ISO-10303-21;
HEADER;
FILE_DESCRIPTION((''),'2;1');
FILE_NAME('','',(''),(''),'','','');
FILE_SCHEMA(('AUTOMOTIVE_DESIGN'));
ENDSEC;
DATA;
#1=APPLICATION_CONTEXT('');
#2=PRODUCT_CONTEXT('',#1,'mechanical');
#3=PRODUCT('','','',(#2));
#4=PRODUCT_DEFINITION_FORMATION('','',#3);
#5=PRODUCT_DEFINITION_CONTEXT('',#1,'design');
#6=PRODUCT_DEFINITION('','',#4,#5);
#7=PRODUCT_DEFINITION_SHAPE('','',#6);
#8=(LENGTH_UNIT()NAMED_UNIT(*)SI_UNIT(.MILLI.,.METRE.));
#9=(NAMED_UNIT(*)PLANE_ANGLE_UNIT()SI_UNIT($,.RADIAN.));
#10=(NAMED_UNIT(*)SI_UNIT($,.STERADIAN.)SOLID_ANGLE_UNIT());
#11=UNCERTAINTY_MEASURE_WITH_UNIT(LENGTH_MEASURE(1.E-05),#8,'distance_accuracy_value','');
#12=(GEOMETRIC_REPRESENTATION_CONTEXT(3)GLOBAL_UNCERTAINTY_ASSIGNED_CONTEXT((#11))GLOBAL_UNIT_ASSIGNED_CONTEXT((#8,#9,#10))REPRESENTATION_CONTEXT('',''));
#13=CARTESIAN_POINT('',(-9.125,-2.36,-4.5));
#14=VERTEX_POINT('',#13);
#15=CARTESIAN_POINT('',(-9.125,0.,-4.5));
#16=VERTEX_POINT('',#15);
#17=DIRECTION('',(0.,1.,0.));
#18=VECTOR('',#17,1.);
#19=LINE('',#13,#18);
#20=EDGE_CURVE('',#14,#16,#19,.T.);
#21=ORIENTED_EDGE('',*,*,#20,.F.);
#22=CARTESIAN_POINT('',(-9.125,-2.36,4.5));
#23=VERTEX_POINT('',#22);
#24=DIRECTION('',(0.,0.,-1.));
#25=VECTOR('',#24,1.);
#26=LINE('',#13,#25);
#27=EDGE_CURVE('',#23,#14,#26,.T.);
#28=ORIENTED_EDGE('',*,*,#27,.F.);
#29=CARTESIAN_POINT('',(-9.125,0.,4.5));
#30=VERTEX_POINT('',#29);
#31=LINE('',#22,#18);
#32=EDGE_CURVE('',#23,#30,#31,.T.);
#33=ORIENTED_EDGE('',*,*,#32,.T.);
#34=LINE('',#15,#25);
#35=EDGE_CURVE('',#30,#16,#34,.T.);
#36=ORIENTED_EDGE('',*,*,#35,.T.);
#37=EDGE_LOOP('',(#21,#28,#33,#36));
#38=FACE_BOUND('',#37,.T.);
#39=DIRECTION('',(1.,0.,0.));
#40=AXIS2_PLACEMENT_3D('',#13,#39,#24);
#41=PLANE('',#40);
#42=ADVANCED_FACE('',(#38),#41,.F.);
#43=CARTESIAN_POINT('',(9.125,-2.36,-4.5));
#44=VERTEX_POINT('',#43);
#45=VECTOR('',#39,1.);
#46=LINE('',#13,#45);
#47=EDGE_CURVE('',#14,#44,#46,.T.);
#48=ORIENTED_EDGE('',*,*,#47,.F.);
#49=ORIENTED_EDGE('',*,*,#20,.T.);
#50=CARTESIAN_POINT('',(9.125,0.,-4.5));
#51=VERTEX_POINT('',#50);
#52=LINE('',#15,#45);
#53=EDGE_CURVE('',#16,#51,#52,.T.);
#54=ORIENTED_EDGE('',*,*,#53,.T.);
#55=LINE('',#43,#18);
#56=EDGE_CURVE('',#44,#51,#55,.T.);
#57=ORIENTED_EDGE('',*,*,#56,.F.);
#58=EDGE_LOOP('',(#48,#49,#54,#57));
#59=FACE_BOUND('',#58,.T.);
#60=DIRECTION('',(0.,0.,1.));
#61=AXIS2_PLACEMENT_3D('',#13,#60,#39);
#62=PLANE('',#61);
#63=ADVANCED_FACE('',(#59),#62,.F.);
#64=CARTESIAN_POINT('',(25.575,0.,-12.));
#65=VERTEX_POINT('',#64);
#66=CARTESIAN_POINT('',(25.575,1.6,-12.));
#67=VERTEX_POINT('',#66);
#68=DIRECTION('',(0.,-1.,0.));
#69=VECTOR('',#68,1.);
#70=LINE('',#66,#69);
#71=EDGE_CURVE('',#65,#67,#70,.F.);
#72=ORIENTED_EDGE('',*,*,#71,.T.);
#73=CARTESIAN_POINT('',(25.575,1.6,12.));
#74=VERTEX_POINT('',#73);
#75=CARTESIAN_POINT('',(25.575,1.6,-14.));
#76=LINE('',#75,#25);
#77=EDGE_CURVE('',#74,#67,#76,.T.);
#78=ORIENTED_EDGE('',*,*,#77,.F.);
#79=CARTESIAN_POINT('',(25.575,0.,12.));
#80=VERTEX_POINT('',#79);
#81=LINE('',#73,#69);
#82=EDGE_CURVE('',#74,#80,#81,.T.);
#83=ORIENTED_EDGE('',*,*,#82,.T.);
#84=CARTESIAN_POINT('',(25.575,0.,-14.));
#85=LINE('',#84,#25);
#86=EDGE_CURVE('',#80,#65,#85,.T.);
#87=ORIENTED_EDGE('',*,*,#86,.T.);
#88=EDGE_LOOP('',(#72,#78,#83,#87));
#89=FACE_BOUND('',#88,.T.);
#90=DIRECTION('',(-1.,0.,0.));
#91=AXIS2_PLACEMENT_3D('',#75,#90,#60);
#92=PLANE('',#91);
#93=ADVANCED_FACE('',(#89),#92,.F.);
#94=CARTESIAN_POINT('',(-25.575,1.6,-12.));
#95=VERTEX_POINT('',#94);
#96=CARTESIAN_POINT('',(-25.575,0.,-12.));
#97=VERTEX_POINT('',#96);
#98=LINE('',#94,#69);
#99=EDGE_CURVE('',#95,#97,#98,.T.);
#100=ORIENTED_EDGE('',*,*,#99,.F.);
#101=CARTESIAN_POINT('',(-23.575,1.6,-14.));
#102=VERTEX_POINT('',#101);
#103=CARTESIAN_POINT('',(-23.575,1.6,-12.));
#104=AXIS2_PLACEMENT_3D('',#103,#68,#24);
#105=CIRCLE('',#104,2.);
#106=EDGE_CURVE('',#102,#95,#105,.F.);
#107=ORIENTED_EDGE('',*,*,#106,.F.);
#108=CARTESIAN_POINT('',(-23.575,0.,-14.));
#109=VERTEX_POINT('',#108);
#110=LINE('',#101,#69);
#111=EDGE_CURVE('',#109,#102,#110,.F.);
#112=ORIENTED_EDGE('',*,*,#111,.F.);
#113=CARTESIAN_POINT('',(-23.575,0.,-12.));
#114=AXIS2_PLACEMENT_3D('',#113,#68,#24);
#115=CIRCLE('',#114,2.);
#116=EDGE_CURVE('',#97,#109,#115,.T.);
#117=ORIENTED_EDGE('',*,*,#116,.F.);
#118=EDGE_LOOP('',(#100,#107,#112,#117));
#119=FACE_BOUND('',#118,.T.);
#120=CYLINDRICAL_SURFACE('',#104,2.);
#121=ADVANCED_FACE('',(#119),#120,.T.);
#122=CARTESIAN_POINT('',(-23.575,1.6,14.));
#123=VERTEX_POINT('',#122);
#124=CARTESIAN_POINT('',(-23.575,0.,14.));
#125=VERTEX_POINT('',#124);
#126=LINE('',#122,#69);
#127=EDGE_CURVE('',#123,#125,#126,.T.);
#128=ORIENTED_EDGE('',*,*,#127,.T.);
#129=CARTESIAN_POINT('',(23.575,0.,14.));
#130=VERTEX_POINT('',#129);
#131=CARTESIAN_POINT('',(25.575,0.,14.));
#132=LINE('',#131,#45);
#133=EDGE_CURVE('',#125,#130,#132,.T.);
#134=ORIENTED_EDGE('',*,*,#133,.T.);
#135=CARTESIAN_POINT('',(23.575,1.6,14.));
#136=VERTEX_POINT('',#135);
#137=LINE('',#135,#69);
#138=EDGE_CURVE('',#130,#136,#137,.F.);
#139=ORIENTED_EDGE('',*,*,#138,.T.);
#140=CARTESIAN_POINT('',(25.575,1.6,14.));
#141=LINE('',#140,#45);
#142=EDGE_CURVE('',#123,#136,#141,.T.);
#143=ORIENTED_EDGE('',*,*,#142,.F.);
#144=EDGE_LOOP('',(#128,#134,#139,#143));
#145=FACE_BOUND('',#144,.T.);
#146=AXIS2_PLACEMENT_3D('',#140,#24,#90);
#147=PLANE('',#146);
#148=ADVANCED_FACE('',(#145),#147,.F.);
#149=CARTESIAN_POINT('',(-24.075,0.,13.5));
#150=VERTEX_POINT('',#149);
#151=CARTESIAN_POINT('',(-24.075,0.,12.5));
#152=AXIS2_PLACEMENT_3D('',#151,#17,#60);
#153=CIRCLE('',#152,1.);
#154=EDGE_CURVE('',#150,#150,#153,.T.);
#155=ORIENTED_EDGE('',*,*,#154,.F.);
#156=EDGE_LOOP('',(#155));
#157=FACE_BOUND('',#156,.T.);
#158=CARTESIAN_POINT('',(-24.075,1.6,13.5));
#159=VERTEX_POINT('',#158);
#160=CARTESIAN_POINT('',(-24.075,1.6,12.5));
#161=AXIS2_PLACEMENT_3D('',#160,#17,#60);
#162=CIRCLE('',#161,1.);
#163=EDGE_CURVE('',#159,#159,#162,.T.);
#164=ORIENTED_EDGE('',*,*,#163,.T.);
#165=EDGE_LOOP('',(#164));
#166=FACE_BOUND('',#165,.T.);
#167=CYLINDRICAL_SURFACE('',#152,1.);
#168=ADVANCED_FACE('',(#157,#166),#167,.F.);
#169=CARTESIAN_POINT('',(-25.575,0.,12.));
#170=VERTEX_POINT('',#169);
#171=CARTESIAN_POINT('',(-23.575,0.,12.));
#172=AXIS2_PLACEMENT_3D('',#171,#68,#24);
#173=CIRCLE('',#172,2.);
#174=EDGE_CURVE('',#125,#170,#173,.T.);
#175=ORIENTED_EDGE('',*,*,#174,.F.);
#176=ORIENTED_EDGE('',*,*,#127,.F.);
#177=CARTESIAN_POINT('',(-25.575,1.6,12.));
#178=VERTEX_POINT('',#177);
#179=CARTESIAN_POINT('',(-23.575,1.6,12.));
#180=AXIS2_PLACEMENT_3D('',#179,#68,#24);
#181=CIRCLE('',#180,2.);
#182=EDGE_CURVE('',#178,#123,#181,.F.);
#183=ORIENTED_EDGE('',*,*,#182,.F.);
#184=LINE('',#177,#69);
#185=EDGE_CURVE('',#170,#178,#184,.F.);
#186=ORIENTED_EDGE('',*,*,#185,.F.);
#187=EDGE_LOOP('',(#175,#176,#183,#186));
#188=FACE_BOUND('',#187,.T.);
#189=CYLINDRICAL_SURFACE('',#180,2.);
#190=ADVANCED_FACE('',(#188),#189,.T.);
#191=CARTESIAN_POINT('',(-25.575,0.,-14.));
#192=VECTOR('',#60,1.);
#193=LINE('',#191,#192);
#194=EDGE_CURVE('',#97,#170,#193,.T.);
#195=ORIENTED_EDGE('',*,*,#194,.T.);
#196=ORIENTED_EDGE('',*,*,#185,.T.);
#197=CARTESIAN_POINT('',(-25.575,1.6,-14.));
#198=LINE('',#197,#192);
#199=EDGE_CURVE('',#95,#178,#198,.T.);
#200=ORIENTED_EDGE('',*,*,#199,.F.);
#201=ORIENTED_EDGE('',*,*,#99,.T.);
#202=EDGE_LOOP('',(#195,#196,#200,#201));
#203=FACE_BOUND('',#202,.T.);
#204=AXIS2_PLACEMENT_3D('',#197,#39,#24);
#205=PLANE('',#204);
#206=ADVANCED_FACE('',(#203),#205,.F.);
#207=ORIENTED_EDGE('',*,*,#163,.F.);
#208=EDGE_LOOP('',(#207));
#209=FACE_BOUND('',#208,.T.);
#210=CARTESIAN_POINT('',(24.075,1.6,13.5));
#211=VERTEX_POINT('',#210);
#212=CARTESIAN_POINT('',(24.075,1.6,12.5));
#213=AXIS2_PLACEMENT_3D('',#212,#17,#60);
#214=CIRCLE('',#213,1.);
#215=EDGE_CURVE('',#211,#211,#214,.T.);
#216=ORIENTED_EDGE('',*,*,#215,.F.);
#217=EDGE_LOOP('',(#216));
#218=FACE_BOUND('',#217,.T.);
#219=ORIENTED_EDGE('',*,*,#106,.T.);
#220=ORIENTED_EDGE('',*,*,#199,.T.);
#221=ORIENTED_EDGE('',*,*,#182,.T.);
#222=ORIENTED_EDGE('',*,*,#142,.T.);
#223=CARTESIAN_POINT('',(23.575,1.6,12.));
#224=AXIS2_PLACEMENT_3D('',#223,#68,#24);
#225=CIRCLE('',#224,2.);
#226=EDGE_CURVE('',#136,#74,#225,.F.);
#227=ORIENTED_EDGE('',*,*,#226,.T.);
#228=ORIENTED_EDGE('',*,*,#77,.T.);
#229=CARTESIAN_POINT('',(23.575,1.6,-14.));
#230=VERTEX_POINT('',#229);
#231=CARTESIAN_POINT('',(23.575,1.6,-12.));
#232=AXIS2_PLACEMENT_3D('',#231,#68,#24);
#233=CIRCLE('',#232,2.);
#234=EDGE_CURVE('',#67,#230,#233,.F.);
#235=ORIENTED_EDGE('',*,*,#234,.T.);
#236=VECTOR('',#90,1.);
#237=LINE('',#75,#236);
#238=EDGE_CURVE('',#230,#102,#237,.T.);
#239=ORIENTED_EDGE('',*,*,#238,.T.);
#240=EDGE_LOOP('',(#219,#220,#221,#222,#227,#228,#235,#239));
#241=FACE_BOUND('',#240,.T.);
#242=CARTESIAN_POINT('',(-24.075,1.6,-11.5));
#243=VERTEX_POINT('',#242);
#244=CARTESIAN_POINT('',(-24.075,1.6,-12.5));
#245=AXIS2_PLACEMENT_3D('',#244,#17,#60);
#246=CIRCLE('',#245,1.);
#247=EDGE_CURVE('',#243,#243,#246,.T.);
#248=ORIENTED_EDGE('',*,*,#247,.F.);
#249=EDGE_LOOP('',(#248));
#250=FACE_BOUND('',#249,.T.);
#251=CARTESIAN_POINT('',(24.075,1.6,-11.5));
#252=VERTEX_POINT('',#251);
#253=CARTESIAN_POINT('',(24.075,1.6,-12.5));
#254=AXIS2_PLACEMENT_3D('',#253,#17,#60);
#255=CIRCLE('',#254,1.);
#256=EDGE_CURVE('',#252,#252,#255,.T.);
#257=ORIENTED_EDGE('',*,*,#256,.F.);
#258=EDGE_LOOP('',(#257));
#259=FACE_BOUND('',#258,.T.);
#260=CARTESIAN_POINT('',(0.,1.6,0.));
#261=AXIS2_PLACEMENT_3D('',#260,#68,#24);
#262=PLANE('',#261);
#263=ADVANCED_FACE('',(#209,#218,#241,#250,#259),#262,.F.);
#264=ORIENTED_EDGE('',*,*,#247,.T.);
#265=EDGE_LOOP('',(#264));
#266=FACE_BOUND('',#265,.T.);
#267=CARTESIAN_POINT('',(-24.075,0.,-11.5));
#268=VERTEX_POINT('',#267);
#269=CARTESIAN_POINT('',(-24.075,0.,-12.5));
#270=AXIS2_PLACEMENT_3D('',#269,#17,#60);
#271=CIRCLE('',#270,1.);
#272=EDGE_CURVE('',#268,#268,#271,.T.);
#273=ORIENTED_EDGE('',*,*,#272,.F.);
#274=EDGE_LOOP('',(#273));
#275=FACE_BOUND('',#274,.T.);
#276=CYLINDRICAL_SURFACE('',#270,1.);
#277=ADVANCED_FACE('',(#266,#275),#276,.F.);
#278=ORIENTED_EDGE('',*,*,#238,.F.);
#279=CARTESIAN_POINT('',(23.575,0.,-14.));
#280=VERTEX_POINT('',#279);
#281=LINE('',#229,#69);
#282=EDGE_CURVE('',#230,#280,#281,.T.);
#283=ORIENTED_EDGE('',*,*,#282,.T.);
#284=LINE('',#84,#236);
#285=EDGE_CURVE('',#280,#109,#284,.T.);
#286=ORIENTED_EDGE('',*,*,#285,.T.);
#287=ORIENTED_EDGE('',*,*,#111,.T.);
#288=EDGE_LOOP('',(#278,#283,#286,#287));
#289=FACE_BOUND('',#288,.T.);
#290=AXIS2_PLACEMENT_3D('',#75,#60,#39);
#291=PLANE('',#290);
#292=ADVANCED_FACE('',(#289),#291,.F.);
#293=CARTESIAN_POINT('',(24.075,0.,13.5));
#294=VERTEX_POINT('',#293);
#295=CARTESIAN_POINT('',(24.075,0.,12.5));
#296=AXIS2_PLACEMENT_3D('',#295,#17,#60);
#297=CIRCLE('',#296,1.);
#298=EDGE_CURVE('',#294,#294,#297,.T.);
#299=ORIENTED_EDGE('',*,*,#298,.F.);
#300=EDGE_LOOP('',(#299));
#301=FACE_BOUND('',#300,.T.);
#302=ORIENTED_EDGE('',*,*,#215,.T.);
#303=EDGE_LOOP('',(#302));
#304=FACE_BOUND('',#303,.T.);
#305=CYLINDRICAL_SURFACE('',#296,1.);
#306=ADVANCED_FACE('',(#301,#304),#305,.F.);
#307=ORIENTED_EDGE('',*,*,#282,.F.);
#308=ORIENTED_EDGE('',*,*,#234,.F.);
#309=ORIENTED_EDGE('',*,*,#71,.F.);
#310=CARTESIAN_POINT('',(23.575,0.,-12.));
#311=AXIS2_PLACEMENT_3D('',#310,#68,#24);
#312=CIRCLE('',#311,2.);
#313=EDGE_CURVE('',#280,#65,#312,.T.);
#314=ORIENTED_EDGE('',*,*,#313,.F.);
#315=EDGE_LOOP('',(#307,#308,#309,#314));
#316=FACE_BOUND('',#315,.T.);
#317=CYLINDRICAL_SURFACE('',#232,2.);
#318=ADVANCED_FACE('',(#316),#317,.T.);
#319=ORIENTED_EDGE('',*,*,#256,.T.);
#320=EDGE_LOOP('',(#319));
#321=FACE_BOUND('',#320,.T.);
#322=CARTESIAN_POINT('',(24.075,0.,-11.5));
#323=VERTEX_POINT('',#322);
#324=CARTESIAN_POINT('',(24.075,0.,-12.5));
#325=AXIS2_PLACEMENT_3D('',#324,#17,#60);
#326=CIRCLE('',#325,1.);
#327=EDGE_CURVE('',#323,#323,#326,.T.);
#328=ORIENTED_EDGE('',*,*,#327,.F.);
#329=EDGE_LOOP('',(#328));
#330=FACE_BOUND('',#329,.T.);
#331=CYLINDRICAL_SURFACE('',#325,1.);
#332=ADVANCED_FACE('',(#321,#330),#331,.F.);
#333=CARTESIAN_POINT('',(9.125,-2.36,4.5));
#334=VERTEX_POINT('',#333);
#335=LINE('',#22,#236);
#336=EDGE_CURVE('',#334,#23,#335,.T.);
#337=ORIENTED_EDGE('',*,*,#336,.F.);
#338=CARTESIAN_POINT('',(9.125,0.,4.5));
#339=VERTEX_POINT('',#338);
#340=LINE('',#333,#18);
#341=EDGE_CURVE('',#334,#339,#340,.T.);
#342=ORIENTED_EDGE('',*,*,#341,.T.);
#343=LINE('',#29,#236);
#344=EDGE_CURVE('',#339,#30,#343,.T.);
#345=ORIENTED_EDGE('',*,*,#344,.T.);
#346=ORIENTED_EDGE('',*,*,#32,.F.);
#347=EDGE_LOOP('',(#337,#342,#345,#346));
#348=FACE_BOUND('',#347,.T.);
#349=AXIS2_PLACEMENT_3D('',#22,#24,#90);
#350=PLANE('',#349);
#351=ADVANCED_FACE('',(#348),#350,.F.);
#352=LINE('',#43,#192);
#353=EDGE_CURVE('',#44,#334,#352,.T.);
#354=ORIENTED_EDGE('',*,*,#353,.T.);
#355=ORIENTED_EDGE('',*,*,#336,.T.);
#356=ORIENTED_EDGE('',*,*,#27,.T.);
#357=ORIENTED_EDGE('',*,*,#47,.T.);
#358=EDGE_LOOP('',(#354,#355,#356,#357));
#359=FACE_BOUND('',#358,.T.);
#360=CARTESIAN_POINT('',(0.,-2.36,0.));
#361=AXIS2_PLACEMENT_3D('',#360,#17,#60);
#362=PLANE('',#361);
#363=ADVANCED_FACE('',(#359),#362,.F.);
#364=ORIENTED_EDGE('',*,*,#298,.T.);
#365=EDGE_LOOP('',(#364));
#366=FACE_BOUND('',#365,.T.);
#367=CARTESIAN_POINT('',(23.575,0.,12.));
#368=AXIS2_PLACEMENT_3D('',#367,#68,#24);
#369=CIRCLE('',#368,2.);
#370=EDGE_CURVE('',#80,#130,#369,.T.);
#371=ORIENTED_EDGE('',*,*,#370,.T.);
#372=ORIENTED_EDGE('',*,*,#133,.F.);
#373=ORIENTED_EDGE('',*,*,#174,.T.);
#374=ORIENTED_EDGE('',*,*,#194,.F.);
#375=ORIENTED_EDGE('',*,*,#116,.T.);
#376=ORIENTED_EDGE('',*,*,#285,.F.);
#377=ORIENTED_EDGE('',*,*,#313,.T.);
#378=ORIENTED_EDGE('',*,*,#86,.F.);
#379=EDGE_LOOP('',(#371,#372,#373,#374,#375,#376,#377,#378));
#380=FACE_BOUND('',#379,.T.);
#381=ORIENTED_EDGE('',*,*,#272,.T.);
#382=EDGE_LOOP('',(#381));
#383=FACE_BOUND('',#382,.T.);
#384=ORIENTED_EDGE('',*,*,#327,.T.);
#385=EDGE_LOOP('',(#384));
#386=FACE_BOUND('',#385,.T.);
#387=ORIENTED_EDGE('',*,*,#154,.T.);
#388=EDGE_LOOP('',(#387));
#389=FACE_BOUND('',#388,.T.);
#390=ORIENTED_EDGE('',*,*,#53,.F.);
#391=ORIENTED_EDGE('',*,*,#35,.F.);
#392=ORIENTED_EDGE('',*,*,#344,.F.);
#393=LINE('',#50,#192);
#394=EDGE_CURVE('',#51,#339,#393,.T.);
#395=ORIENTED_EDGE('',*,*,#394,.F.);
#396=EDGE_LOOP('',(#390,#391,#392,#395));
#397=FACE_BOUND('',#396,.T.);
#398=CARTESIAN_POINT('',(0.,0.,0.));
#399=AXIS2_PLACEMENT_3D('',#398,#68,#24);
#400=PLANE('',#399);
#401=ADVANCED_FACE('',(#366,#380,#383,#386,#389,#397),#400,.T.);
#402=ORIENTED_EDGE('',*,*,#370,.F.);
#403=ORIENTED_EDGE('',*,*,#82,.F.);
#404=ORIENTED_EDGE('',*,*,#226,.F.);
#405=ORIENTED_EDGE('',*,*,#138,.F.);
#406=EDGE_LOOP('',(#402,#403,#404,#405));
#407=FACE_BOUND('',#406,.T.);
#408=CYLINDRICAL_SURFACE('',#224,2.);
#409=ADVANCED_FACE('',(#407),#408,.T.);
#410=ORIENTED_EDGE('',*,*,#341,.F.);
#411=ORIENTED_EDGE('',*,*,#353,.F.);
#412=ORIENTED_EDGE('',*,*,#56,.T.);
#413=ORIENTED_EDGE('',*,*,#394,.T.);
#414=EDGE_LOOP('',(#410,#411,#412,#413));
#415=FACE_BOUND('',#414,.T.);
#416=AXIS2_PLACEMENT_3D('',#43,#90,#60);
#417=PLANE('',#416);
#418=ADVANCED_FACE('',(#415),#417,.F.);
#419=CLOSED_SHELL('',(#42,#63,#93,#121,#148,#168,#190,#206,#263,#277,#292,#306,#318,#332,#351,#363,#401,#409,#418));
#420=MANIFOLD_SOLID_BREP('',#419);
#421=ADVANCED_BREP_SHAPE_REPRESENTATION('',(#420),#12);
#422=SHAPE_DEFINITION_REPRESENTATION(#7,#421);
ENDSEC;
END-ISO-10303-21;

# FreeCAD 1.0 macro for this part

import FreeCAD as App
import Part
import Sketcher
Q = App.Units.Quantity


def edges_at(feature, points):
    """Names of the edges that pass closest to the given points."""
    edges = feature.Shape.Edges
    near = lambda p: min(range(len(edges)), key=lambda i: edges[i].distToShape(Part.Vertex(*p))[0])
    return sorted({f"Edge{near(p) + 1}" for p in points})

doc = App.newDocument("Part")
params = doc.addObject("Spreadsheet::Sheet", "Params")
for row, (alias, value) in enumerate([
    ("sketch1_height", "28 mm"),
    ("sketch1_width", "51.15 mm"),
    ("pad1_length", "1.6 mm"),
    ("sketch2_diameter", "2 mm"),
    ("fillet_radius", "2 mm"),
    ("sketch3_height", "9 mm"),
    ("sketch3_width", "18.25 mm"),
    ("pad2_length", "2.36 mm"),
], start=1):
    params.set(f"A{row}", alias)
    params.set(f"B{row}", "=" + value)
    params.setAlias(f"B{row}", alias)

body = doc.addObject("PartDesign::Body", "Body")

# Sketch on XZ plane
sketch1 = body.newObject("Sketcher::SketchObject", "Sketch")
sketch1.AttachmentSupport = (doc.getObject("XZ_Plane"), [""])
sketch1.MapMode = "FlatFace"
sketch1.addGeometry(Part.LineSegment(App.Vector(-25.575, -14, 0), App.Vector(-25.575, 14, 0)), False)
sketch1.addGeometry(Part.LineSegment(App.Vector(-25.575, 14, 0), App.Vector(25.575, 14, 0)), False)
sketch1.addGeometry(Part.LineSegment(App.Vector(25.575, 14, 0), App.Vector(25.575, -14, 0)), False)
sketch1.addGeometry(Part.LineSegment(App.Vector(25.575, -14, 0), App.Vector(-25.575, -14, 0)), False)
sketch1.addConstraint(Sketcher.Constraint("Coincident", 0, 2, 1, 1))
sketch1.addConstraint(Sketcher.Constraint("Coincident", 1, 2, 2, 1))
sketch1.addConstraint(Sketcher.Constraint("Coincident", 2, 2, 3, 1))
sketch1.addConstraint(Sketcher.Constraint("Coincident", 3, 2, 0, 1))
sketch1.addConstraint(Sketcher.Constraint("Vertical", 0))
sketch1.addConstraint(Sketcher.Constraint("Horizontal", 1))
sketch1.addConstraint(Sketcher.Constraint("Vertical", 2))
sketch1.addConstraint(Sketcher.Constraint("Horizontal", 3))
sketch1.addConstraint(Sketcher.Constraint("Symmetric", 0, 2, 2, 2, -1, 1))
sketch1.addConstraint(Sketcher.Constraint("DistanceY", 0, 1, 0, 2, Q("28 mm")))
sketch1.addConstraint(Sketcher.Constraint("DistanceX", 1, 1, 1, 2, Q("51.15 mm")))
sketch1.setExpression("Constraints[9]", "Params.sketch1_height")
sketch1.setExpression("Constraints[10]", "Params.sketch1_width")
pad1 = body.newObject("PartDesign::Pad", "Pad")
pad1.Profile = sketch1
pad1.setExpression("Length", "Params.pad1_length")
pad1.Reversed = True

# Sketch on XZ plane
sketch2 = body.newObject("Sketcher::SketchObject", "Sketch001")
sketch2.AttachmentSupport = (doc.getObject("XZ_Plane"), [""])
sketch2.MapMode = "FlatFace"
sketch2.AttachmentOffset = App.Placement(App.Vector(0, 0, -1.6), App.Rotation())
sketch2.addGeometry(Part.Circle(App.Vector(-24.075, -12.5, 0), App.Vector(0, 0, 1), 1), False)
sketch2.addGeometry(Part.Circle(App.Vector(24.075, -12.5, 0), App.Vector(0, 0, 1), 1), False)
sketch2.addGeometry(Part.Circle(App.Vector(24.075, 12.5, 0), App.Vector(0, 0, 1), 1), False)
sketch2.addGeometry(Part.Circle(App.Vector(-24.075, 12.5, 0), App.Vector(0, 0, 1), 1), False)
sketch2.addConstraint(Sketcher.Constraint("Equal", 0, 1))
sketch2.addConstraint(Sketcher.Constraint("Equal", 1, 2))
sketch2.addConstraint(Sketcher.Constraint("Equal", 2, 3))
sketch2.addConstraint(Sketcher.Constraint("Symmetric", 0, 3, 2, 3, -1, 1))
sketch2.addConstraint(Sketcher.Constraint("Symmetric", 1, 3, 3, 3, -1, 1))
sketch2.addConstraint(Sketcher.Constraint("Symmetric", 0, 3, 1, 3, -2))
sketch2.addConstraint(Sketcher.Constraint("Diameter", 0, Q("2 mm")))
sketch2.addConstraint(Sketcher.Constraint("DistanceY", 1, 3, 2, 3, Q("25 mm")))
sketch2.addConstraint(Sketcher.Constraint("DistanceX", 0, 3, 1, 3, Q("48.15 mm")))
sketch2.setExpression("Constraints[6]", "Params.sketch2_diameter")
pocket1 = body.newObject("PartDesign::Pocket", "Pocket")
pocket1.Profile = sketch2
pocket1.Type = "ThroughAll"
pocket1.Reversed = True
doc.recompute()

fillet = body.newObject("PartDesign::Fillet", "Fillet")
fillet.Base = (pocket1, edges_at(pocket1, [
    (-25.575, 0.8, -14),
    (25.575, 0.8, -14),
    (25.575, 0.8, 14),
    (-25.575, 0.8, 14),
]))
fillet.setExpression("Radius", "Params.fillet_radius")

# Sketch on XZ plane
sketch3 = body.newObject("Sketcher::SketchObject", "Sketch002")
sketch3.AttachmentSupport = (doc.getObject("XZ_Plane"), [""])
sketch3.MapMode = "FlatFace"
sketch3.addGeometry(Part.LineSegment(App.Vector(-9.125, 4.5, 0), App.Vector(-9.125, -4.5, 0)), False)
sketch3.addGeometry(Part.LineSegment(App.Vector(-9.125, -4.5, 0), App.Vector(9.125, -4.5, 0)), False)
sketch3.addGeometry(Part.LineSegment(App.Vector(9.125, -4.5, 0), App.Vector(9.125, 4.5, 0)), False)
sketch3.addGeometry(Part.LineSegment(App.Vector(9.125, 4.5, 0), App.Vector(-9.125, 4.5, 0)), False)
sketch3.addConstraint(Sketcher.Constraint("Coincident", 0, 2, 1, 1))
sketch3.addConstraint(Sketcher.Constraint("Coincident", 1, 2, 2, 1))
sketch3.addConstraint(Sketcher.Constraint("Coincident", 2, 2, 3, 1))
sketch3.addConstraint(Sketcher.Constraint("Coincident", 3, 2, 0, 1))
sketch3.addConstraint(Sketcher.Constraint("Vertical", 0))
sketch3.addConstraint(Sketcher.Constraint("Horizontal", 1))
sketch3.addConstraint(Sketcher.Constraint("Vertical", 2))
sketch3.addConstraint(Sketcher.Constraint("Horizontal", 3))
sketch3.addConstraint(Sketcher.Constraint("Symmetric", 0, 2, 2, 2, -1, 1))
sketch3.addConstraint(Sketcher.Constraint("DistanceY", 0, 2, 0, 1, Q("9 mm")))
sketch3.addConstraint(Sketcher.Constraint("DistanceX", 1, 1, 1, 2, Q("18.25 mm")))
sketch3.setExpression("Constraints[9]", "Params.sketch3_height")
sketch3.setExpression("Constraints[10]", "Params.sketch3_width")
pad2 = body.newObject("PartDesign::Pad", "Pad001")
pad2.Profile = sketch3
pad2.setExpression("Length", "Params.pad2_length")

doc.recompute()
